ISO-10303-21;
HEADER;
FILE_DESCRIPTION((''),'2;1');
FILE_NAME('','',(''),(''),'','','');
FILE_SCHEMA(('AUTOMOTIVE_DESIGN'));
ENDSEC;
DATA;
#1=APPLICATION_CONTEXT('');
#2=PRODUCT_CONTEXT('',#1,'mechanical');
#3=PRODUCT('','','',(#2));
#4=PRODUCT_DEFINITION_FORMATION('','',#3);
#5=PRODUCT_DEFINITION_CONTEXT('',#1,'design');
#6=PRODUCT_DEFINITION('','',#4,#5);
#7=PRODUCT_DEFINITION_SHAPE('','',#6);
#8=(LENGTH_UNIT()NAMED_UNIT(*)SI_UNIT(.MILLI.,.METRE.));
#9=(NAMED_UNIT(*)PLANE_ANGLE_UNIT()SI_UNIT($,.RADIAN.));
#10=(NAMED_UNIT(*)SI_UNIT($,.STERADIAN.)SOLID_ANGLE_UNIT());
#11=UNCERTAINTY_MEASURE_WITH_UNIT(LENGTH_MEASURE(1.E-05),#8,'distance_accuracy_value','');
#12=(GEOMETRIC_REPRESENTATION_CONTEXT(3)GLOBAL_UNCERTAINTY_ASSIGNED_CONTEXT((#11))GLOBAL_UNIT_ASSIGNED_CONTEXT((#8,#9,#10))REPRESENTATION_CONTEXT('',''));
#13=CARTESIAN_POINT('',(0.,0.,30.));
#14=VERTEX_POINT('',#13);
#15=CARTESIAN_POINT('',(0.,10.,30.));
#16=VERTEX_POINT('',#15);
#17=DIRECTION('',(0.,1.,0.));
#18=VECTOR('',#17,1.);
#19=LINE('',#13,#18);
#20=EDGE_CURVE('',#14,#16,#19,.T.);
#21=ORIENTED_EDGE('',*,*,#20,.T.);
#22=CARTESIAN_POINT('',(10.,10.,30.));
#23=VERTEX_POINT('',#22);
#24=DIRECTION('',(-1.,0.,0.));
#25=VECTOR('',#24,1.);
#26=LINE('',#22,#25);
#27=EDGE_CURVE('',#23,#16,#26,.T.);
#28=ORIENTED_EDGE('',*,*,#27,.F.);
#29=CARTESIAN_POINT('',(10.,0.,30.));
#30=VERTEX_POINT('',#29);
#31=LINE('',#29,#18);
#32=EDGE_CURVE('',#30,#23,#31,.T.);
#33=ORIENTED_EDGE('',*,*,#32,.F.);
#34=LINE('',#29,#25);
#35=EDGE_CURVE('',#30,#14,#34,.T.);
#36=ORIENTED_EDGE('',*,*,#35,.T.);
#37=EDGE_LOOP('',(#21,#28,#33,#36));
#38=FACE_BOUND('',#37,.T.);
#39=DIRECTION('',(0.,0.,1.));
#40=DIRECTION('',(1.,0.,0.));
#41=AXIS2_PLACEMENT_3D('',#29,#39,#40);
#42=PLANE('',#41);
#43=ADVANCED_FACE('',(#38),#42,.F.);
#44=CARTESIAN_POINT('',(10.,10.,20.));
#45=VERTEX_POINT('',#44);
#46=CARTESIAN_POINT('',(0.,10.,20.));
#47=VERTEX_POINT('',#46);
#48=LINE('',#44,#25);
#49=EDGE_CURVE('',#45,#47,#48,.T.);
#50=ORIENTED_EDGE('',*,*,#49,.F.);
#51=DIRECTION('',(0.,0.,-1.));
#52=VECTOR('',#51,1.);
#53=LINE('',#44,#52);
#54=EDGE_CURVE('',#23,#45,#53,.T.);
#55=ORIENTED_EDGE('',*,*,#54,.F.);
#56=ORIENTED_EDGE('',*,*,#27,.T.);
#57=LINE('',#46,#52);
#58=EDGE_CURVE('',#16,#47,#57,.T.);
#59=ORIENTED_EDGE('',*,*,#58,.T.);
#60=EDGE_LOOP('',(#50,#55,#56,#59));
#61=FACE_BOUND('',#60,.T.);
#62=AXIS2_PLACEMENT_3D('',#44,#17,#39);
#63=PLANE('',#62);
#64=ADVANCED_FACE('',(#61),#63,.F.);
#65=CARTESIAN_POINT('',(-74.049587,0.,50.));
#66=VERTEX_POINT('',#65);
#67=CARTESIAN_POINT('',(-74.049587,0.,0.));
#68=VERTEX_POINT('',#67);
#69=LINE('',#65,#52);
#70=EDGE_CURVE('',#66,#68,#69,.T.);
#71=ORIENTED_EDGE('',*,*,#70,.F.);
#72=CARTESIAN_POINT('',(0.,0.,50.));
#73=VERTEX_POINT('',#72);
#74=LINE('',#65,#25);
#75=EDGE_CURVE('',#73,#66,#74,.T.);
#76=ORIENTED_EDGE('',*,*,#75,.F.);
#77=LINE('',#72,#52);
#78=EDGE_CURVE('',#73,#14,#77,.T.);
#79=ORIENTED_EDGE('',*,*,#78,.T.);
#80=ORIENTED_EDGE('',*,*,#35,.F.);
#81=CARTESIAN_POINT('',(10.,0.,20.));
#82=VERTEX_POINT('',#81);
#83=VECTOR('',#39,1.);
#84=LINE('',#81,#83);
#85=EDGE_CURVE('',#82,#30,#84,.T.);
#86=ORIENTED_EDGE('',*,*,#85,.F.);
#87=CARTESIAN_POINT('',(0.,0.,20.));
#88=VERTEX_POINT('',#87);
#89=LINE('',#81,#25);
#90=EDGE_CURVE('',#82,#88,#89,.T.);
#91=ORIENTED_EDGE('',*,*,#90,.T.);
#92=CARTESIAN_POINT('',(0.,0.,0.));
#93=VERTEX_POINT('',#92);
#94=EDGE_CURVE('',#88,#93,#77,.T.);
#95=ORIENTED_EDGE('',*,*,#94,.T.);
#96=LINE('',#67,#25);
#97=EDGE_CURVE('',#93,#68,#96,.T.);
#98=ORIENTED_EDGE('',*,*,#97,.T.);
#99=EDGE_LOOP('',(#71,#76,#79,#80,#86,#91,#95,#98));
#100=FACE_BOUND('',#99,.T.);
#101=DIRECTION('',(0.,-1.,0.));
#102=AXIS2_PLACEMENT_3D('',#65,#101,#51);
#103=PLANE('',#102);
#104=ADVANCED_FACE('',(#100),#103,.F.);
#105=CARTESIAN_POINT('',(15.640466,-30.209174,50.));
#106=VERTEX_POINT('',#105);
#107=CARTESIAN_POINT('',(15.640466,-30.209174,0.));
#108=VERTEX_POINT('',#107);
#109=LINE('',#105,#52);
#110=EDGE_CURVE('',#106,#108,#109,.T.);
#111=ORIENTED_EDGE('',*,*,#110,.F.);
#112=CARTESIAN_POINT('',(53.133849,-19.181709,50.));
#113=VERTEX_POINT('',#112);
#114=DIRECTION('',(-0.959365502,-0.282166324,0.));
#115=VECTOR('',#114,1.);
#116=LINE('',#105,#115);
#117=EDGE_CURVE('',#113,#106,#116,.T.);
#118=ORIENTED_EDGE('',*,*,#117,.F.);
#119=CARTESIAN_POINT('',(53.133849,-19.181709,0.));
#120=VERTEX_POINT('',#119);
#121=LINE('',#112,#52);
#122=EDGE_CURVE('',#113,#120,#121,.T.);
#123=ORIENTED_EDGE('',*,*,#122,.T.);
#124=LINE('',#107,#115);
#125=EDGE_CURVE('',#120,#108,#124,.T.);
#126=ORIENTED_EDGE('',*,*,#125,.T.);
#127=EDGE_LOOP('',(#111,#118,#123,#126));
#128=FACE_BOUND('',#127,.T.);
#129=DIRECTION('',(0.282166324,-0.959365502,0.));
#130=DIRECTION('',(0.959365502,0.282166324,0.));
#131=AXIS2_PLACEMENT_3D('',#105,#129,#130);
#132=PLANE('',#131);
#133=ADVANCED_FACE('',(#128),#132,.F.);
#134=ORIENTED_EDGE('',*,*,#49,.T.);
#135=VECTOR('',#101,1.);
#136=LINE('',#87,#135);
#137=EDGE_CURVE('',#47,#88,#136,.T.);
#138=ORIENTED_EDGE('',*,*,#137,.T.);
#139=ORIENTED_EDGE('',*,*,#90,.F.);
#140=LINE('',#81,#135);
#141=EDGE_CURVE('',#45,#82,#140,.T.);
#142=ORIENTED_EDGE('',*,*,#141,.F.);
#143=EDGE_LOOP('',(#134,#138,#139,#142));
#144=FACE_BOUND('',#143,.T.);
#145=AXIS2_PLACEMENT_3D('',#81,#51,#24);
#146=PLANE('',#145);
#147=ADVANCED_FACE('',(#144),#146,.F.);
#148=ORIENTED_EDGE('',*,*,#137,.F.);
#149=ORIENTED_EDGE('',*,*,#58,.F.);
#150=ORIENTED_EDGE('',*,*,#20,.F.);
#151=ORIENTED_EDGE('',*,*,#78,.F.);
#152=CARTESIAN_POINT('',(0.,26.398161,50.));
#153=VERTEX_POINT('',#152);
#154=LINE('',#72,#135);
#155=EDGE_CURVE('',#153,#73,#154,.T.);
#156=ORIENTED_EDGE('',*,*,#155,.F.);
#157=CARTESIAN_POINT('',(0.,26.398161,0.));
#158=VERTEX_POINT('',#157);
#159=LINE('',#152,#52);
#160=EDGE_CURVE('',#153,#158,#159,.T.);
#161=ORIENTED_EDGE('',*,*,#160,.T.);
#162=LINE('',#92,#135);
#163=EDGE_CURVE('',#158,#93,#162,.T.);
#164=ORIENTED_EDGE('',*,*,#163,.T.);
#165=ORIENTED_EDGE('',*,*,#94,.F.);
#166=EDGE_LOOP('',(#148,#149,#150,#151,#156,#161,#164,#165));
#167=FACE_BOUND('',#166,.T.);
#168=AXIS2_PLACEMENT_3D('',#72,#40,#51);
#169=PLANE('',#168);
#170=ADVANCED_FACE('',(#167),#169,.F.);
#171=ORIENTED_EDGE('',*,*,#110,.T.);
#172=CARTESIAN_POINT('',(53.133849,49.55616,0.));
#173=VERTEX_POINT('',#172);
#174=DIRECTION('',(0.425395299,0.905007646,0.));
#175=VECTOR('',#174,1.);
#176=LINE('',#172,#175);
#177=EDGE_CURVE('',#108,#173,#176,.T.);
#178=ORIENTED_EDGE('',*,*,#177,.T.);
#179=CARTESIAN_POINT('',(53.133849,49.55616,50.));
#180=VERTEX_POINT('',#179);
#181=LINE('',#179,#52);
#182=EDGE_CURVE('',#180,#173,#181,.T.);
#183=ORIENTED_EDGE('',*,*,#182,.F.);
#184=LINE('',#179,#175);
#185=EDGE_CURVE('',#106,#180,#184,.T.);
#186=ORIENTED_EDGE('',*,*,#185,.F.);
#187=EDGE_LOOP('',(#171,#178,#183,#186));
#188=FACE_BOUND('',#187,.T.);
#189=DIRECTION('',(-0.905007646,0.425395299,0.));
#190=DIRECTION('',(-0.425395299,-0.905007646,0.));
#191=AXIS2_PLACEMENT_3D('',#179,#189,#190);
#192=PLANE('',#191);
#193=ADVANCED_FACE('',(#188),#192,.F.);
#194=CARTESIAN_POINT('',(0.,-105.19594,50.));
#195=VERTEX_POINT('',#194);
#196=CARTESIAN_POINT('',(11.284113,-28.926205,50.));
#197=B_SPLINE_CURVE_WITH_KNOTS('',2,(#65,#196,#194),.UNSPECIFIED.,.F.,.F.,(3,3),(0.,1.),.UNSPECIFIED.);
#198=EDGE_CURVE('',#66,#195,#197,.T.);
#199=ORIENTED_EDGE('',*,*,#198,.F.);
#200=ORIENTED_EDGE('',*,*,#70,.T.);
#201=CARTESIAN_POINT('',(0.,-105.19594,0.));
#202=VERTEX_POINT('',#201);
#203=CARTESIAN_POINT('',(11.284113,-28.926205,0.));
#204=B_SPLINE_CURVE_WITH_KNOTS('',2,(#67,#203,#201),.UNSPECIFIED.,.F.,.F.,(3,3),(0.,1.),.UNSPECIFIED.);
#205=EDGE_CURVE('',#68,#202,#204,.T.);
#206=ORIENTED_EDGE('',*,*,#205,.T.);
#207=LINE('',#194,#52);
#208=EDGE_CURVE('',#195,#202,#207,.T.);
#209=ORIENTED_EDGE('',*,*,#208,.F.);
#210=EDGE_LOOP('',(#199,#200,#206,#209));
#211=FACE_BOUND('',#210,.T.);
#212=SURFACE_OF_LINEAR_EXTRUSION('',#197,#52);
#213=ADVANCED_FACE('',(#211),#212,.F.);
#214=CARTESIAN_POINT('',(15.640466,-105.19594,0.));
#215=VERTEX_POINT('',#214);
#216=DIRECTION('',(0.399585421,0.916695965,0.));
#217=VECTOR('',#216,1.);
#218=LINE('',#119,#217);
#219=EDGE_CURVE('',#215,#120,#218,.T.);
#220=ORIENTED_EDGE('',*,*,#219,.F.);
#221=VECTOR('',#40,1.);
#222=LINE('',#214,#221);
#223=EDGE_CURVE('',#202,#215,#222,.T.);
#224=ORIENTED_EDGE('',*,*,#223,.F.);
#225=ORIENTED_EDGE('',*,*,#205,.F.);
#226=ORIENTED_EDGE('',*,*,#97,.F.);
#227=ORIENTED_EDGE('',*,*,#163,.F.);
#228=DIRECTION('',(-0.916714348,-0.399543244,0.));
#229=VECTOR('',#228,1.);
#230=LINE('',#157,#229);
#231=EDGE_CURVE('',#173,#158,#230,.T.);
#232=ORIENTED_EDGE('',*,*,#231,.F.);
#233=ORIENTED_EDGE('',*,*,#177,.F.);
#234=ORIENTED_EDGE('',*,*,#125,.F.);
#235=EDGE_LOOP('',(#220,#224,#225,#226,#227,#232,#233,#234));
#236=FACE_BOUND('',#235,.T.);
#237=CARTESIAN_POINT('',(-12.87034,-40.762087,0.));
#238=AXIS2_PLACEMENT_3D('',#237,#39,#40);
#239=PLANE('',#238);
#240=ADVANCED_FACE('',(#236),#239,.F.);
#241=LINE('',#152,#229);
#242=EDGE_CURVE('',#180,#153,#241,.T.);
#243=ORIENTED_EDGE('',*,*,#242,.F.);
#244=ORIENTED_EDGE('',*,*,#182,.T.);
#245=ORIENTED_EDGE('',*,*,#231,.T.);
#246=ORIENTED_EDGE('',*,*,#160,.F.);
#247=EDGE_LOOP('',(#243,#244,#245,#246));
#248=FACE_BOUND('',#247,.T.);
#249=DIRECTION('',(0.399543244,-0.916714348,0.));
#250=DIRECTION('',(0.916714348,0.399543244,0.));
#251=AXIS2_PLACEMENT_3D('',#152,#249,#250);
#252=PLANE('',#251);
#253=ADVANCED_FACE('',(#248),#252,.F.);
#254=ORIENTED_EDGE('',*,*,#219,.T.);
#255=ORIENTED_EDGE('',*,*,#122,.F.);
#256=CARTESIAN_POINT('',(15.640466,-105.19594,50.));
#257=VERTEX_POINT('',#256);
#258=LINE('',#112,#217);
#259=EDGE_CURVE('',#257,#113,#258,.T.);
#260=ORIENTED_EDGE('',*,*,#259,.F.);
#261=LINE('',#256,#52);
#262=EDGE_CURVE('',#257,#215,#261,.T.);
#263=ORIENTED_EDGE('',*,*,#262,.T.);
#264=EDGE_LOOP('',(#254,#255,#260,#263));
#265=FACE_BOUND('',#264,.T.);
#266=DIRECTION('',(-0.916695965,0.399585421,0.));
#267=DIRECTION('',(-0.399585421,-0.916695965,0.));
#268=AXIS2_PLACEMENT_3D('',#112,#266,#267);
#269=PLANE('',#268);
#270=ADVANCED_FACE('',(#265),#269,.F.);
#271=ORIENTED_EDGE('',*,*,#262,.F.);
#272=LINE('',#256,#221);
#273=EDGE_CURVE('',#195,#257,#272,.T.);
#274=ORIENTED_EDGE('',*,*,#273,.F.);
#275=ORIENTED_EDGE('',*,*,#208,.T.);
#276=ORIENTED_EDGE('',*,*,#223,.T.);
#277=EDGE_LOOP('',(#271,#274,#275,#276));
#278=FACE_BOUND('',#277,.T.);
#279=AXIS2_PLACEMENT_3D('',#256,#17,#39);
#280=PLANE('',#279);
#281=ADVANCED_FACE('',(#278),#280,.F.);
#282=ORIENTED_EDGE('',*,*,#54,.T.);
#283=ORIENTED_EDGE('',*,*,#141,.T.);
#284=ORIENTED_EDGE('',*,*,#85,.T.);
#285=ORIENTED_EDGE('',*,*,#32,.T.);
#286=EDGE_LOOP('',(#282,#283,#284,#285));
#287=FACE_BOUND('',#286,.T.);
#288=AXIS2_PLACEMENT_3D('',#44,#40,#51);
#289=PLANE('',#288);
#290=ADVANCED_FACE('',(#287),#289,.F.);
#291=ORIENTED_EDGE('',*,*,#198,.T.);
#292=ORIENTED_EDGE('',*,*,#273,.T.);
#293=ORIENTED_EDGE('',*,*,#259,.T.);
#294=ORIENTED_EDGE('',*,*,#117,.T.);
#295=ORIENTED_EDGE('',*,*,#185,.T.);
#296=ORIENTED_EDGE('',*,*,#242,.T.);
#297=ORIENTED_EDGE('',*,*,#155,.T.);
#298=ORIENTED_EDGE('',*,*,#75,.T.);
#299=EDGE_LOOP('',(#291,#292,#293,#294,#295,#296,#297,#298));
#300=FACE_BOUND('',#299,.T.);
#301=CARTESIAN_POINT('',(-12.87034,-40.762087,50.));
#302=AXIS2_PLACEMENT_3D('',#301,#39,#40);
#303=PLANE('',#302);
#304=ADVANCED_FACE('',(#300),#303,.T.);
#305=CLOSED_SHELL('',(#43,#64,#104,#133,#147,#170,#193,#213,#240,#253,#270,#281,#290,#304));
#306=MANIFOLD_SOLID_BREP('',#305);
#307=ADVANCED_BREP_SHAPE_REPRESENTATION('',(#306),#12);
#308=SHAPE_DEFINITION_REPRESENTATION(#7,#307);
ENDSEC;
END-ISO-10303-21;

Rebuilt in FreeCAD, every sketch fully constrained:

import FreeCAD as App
import Part
import Sketcher
from FreeCAD import Vector


def add_polygon(sketch, points):
    """Adds a closed chain of lines whose ends are joined by coincident constraints."""
    first, n = sketch.GeometryCount, len(points)
    for a, b in zip(points, points[1:] + points[:1]):
        sketch.addGeometry(Part.LineSegment(App.Vector(*a, 0), App.Vector(*b, 0)), False)
    for i in range(n):
        sketch.addConstraint(Sketcher.Constraint("Coincident", first + i, 2, first + (i + 1) % n, 1))

doc = App.newDocument("Part")
body = doc.addObject("PartDesign::Body", "Body")

# Sketch on XY plane
sketch1 = body.newObject("Sketcher::SketchObject", "Sketch")
sketch1.AttachmentSupport = (doc.getObject("XY_Plane"), [""])
sketch1.MapMode = "FlatFace"
sketch1.addGeometry([
    Part.LineSegment(Vector(0, 0, 0), Vector(-74.049587, 0, 0)),  # 0
    Part.BSplineCurve([Vector(-74.049587, 0, 0), Vector(11.284113, -28.926205, 0), Vector(0, -105.19594, 0)], [3, 3], [0, 1], False, 2, [1, 1, 1], False),  # 1
    Part.LineSegment(Vector(0, -105.19594, 0), Vector(15.640466, -105.19594, 0)),  # 2
    Part.LineSegment(Vector(15.640466, -105.19594, 0), Vector(53.133849, -19.181709, 0)),  # 3
    Part.LineSegment(Vector(53.133849, -19.181709, 0), Vector(15.640466, -30.209174, 0)),  # 4
    Part.LineSegment(Vector(15.640466, -30.209174, 0), Vector(53.133849, 49.55616, 0)),  # 5
    Part.LineSegment(Vector(53.133849, 49.55616, 0), Vector(0, 26.398161, 0)),  # 6
    Part.LineSegment(Vector(0, 26.398161, 0), Vector(0, 0, 0)),  # 7
], False)
sketch1.addConstraint([
    Sketcher.Constraint("Block", 1),
    Sketcher.Constraint("Coincident", 0, 2, 1, 1),
    Sketcher.Constraint("Coincident", 1, 2, 2, 1),
    Sketcher.Constraint("Coincident", 2, 2, 3, 1),
    Sketcher.Constraint("Coincident", 3, 2, 4, 1),
    Sketcher.Constraint("Coincident", 4, 2, 5, 1),
    Sketcher.Constraint("Coincident", 5, 2, 6, 1),
    Sketcher.Constraint("Coincident", 6, 2, 7, 1),
    Sketcher.Constraint("Coincident", 7, 2, 0, 1),
    Sketcher.Constraint("Horizontal", 0),
    Sketcher.Constraint("Horizontal", 2),
    Sketcher.Constraint("Vertical", 7),
    Sketcher.Constraint("PointOnObject", 6, 2, -2),
    Sketcher.Constraint("Vertical", 2, 2, 4, 2),
    Sketcher.Constraint("Vertical", 3, 2, 5, 2),
    Sketcher.Constraint("DistanceY", 6, 2, 5, 2, 23.157999),
    Sketcher.Constraint("DistanceY", 7, 2, 7, 1, 26.398161),
    Sketcher.Constraint("Distance", 3, 93.830708),
    Sketcher.Constraint("DistanceX", 2, 1, 2, 2, 15.640466),
    Sketcher.Constraint("DistanceX", -1, 1, 3, 2, 53.133849),
    Sketcher.Constraint("Distance", 4, 39.081438),
])
pad1 = body.newObject("PartDesign::Pad", "Pad")
pad1.Profile = sketch1
pad1.Length = 50

# Sketch on YZ plane
sketch2 = body.newObject("Sketcher::SketchObject", "Sketch001")
sketch2.AttachmentSupport = (doc.getObject("YZ_Plane"), [""])
sketch2.MapMode = "FlatFace"
add_polygon(sketch2, [(10, 20), (0, 20), (0, 30), (10, 30)])  # lines 0-3
sketch2.addConstraint([
    Sketcher.Constraint("Horizontal", 0),
    Sketcher.Constraint("Vertical", 1),
    Sketcher.Constraint("Horizontal", 2),
    Sketcher.Constraint("Vertical", 3),
    Sketcher.Constraint("PointOnObject", 0, 2, -2),
    Sketcher.Constraint("Equal", 2, 1),
    Sketcher.Constraint("DistanceX", 0, 2, 0, 1, 10.0),
    Sketcher.Constraint("DistanceY", -1, 1, 0, 2, 20.0),
])
pocket1 = body.newObject("PartDesign::Pocket", "Pocket")
pocket1.Profile = sketch2
pocket1.Length = 10
pocket1.Reversed = True

doc.recompute()
